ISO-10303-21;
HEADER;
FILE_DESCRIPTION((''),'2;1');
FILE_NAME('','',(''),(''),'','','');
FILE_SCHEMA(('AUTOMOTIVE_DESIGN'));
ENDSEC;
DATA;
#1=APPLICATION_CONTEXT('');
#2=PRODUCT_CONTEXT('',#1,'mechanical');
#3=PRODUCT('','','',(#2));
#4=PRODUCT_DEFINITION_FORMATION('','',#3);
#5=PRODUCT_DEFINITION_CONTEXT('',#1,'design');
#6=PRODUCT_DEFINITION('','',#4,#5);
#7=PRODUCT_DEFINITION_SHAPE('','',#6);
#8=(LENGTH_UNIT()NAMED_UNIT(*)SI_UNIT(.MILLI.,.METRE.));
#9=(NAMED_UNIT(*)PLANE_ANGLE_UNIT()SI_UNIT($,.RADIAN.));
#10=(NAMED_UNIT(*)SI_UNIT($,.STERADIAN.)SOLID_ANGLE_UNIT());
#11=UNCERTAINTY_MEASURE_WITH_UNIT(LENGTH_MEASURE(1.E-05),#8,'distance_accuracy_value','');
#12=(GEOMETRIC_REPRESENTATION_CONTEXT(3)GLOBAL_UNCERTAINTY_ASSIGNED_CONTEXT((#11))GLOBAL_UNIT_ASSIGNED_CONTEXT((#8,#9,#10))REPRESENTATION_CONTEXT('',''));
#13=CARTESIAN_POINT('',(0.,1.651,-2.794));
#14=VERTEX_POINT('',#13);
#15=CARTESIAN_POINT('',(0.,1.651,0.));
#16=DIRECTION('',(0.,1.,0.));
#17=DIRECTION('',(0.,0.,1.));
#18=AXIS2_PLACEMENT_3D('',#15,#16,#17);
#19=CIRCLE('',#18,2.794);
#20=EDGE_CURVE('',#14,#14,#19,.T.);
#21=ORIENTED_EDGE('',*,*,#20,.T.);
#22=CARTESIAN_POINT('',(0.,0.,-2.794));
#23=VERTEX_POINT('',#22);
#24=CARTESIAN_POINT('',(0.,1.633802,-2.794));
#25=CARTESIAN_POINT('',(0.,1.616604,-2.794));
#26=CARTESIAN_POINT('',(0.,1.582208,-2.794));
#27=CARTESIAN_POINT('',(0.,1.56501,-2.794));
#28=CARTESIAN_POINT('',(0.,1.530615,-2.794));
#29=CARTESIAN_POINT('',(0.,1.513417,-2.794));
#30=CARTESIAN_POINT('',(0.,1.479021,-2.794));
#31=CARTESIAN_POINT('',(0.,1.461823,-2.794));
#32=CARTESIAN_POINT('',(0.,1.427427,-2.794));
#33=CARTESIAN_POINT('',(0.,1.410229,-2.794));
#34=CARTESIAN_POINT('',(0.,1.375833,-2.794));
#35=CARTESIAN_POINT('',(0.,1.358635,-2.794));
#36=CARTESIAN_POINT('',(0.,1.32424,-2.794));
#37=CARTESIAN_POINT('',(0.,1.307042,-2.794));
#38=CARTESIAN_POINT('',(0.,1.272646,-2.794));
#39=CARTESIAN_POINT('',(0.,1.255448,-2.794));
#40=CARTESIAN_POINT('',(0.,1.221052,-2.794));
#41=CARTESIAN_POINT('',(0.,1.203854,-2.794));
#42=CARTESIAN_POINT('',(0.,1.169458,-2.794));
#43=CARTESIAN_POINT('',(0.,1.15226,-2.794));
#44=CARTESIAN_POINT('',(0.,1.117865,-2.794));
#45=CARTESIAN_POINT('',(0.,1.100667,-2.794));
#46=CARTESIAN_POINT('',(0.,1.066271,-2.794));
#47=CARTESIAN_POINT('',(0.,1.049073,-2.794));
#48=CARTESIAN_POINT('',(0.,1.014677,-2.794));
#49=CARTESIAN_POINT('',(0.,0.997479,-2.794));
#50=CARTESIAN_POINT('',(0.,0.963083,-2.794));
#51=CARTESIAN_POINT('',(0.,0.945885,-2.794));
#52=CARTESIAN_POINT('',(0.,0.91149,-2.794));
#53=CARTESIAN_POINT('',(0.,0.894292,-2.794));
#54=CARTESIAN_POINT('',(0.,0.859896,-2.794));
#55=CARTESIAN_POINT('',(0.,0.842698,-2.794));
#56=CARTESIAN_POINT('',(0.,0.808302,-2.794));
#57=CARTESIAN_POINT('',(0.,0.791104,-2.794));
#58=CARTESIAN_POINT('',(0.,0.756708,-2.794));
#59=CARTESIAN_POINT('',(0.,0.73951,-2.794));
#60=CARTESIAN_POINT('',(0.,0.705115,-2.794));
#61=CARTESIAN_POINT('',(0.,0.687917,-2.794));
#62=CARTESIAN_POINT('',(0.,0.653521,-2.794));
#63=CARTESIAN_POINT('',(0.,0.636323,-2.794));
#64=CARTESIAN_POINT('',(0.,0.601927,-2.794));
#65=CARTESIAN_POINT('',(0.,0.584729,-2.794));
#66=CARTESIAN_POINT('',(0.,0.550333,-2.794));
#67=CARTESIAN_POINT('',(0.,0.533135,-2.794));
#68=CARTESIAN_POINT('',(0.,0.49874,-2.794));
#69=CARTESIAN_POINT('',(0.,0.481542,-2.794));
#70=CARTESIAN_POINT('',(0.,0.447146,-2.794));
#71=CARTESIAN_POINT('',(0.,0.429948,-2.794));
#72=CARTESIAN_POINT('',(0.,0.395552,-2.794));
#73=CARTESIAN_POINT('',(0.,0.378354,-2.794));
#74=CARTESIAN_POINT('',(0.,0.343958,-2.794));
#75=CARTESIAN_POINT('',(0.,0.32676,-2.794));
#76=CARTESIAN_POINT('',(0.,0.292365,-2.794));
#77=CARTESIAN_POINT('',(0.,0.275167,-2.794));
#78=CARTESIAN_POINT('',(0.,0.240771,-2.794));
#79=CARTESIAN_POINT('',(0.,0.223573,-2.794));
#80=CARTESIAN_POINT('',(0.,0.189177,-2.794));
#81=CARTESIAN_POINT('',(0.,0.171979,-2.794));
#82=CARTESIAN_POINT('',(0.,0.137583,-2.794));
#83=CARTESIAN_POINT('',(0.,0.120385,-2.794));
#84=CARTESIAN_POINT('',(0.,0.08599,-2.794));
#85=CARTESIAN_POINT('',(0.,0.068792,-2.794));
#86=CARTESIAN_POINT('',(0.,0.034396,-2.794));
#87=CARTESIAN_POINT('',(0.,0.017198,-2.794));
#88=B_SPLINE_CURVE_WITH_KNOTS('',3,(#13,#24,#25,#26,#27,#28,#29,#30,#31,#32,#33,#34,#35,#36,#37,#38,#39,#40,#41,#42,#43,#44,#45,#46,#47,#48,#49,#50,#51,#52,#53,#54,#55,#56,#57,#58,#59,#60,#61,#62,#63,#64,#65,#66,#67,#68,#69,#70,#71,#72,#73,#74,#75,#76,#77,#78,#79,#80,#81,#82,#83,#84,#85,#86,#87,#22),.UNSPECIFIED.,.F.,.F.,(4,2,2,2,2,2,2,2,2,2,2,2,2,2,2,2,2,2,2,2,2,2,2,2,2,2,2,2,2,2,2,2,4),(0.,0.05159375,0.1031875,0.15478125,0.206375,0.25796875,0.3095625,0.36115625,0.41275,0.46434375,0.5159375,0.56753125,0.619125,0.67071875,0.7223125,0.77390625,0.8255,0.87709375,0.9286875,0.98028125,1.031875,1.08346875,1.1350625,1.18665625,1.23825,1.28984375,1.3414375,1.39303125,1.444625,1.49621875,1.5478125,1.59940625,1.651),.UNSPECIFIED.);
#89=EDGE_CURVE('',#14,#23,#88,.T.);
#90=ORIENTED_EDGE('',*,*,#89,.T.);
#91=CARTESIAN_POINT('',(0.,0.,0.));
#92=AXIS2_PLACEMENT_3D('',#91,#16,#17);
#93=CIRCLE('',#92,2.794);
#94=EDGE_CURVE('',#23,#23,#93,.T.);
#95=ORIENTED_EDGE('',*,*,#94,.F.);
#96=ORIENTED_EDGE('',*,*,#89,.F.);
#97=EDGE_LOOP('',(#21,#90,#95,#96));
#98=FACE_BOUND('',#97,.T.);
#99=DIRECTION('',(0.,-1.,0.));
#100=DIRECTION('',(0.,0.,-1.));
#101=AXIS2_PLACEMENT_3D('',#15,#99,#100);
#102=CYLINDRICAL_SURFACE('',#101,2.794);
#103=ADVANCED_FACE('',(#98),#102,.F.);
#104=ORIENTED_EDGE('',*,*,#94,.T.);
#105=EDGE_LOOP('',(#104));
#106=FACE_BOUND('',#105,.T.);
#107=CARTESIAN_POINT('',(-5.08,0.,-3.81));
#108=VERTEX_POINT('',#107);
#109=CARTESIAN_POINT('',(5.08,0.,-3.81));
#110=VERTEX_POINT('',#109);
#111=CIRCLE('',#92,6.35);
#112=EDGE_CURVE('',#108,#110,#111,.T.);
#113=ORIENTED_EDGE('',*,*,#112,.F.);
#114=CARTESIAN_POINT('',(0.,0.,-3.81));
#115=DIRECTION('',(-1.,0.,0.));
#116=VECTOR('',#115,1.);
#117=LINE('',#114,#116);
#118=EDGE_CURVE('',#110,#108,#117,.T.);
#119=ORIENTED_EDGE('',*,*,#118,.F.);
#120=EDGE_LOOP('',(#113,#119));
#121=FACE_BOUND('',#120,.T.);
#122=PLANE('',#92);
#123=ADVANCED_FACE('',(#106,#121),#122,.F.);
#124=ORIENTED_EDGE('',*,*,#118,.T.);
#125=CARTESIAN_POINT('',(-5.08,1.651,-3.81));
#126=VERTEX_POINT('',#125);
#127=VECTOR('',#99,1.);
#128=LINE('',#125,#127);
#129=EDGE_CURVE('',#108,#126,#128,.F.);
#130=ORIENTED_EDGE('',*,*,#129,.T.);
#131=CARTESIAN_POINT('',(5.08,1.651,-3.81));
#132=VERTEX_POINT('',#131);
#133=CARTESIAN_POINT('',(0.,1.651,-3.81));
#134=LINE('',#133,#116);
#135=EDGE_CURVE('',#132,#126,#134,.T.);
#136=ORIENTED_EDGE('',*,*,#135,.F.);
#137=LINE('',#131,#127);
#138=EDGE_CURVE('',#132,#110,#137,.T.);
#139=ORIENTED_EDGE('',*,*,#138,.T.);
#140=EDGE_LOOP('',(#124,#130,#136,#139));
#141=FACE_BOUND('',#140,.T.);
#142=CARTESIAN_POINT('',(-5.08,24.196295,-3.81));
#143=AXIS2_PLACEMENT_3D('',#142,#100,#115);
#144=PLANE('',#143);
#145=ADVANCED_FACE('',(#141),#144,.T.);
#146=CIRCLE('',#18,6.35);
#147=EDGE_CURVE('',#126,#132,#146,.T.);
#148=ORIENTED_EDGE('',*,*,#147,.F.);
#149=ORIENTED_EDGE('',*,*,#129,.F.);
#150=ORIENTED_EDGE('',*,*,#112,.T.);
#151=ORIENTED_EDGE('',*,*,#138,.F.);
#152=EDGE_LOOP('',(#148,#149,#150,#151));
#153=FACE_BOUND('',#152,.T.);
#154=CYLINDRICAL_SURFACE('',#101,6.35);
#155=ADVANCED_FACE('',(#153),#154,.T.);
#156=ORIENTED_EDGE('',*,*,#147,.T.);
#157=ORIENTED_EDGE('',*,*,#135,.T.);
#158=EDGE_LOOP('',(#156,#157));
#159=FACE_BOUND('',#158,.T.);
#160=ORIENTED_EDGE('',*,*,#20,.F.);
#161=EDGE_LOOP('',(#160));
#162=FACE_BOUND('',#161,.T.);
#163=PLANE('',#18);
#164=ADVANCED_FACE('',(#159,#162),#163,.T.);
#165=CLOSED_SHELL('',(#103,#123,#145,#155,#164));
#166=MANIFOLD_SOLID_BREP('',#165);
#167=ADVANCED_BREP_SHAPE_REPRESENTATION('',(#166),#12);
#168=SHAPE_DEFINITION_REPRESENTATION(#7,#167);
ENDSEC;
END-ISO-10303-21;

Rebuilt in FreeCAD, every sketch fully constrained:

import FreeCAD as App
import Part
import Sketcher
Q = App.Units.Quantity

doc = App.newDocument("Part")
body = doc.addObject("PartDesign::Body", "Body")

# Sketch on XZ plane
sketch1 = body.newObject("Sketcher::SketchObject", "Sketch")
sketch1.AttachmentSupport = (doc.getObject("XZ_Plane"), [""])
sketch1.MapMode = "FlatFace"
sketch1.addGeometry(Part.Circle(App.Vector(0, 0, 0), App.Vector(0, 0, 1), 6.3), False)
sketch1.addGeometry(Part.Circle(App.Vector(0, 0, 0), App.Vector(0, 0, 1), 2.8), False)
sketch1.addConstraint(Sketcher.Constraint("Coincident", 0, 3, -1, 1))
sketch1.addConstraint(Sketcher.Constraint("Coincident", 1, 3, -1, 1))
sketch1.addConstraint(Sketcher.Constraint("Diameter", 0, Q("0.5 in")))
sketch1.addConstraint(Sketcher.Constraint("Diameter", 1, Q("0.22 in")))
pad1 = body.newObject("PartDesign::Pad", "Pad")
pad1.Profile = sketch1
pad1.Length = Q("0.065 in")
pad1.Reversed = True

# Sketch on XZ plane
sketch2 = body.newObject("Sketcher::SketchObject", "Sketch001")
sketch2.AttachmentSupport = (doc.getObject("XZ_Plane"), [""])
sketch2.MapMode = "FlatFace"
sketch2.AttachmentOffset = App.Placement(App.Vector(0, 0, -0.065 * 25.4), App.Rotation())
sketch2.addGeometry(Part.LineSegment(App.Vector(-46, -4, 0), App.Vector(46, -4, 0)), False)
sketch2.addGeometry(Part.LineSegment(App.Vector(46, -4, 0), App.Vector(46, -85, 0)), False)
sketch2.addGeometry(Part.LineSegment(App.Vector(46, -85, 0), App.Vector(-46, -85, 0)), False)
sketch2.addGeometry(Part.LineSegment(App.Vector(-46, -85, 0), App.Vector(-46, -4, 0)), False)
sketch2.addConstraint(Sketcher.Constraint("Coincident", 0, 2, 1, 1))
sketch2.addConstraint(Sketcher.Constraint("Coincident", 1, 2, 2, 1))
sketch2.addConstraint(Sketcher.Constraint("Coincident", 2, 2, 3, 1))
sketch2.addConstraint(Sketcher.Constraint("Coincident", 3, 2, 0, 1))
sketch2.addConstraint(Sketcher.Constraint("Horizontal", 0))
sketch2.addConstraint(Sketcher.Constraint("Vertical", 1))
sketch2.addConstraint(Sketcher.Constraint("Horizontal", 2))
sketch2.addConstraint(Sketcher.Constraint("Vertical", 3))
sketch2.addConstraint(Sketcher.Constraint("DistanceY", 0, 2, -1, 1, Q("0.15 in")))
sketch2.addConstraint(Sketcher.Constraint("DistanceX", 0, 1, 0, 2, 91.3313))
sketch2.addConstraint(Sketcher.Constraint("DistanceY", 1, 2, 1, 1, 81.1713))
sketch2.addConstraint(Sketcher.Constraint("DistanceX", -1, 1, 0, 2, 45.66565))
pocket1 = body.newObject("PartDesign::Pocket", "Pocket")
pocket1.Profile = sketch2
pocket1.Type = "ThroughAll"
pocket1.Midplane = True

doc.recompute()
